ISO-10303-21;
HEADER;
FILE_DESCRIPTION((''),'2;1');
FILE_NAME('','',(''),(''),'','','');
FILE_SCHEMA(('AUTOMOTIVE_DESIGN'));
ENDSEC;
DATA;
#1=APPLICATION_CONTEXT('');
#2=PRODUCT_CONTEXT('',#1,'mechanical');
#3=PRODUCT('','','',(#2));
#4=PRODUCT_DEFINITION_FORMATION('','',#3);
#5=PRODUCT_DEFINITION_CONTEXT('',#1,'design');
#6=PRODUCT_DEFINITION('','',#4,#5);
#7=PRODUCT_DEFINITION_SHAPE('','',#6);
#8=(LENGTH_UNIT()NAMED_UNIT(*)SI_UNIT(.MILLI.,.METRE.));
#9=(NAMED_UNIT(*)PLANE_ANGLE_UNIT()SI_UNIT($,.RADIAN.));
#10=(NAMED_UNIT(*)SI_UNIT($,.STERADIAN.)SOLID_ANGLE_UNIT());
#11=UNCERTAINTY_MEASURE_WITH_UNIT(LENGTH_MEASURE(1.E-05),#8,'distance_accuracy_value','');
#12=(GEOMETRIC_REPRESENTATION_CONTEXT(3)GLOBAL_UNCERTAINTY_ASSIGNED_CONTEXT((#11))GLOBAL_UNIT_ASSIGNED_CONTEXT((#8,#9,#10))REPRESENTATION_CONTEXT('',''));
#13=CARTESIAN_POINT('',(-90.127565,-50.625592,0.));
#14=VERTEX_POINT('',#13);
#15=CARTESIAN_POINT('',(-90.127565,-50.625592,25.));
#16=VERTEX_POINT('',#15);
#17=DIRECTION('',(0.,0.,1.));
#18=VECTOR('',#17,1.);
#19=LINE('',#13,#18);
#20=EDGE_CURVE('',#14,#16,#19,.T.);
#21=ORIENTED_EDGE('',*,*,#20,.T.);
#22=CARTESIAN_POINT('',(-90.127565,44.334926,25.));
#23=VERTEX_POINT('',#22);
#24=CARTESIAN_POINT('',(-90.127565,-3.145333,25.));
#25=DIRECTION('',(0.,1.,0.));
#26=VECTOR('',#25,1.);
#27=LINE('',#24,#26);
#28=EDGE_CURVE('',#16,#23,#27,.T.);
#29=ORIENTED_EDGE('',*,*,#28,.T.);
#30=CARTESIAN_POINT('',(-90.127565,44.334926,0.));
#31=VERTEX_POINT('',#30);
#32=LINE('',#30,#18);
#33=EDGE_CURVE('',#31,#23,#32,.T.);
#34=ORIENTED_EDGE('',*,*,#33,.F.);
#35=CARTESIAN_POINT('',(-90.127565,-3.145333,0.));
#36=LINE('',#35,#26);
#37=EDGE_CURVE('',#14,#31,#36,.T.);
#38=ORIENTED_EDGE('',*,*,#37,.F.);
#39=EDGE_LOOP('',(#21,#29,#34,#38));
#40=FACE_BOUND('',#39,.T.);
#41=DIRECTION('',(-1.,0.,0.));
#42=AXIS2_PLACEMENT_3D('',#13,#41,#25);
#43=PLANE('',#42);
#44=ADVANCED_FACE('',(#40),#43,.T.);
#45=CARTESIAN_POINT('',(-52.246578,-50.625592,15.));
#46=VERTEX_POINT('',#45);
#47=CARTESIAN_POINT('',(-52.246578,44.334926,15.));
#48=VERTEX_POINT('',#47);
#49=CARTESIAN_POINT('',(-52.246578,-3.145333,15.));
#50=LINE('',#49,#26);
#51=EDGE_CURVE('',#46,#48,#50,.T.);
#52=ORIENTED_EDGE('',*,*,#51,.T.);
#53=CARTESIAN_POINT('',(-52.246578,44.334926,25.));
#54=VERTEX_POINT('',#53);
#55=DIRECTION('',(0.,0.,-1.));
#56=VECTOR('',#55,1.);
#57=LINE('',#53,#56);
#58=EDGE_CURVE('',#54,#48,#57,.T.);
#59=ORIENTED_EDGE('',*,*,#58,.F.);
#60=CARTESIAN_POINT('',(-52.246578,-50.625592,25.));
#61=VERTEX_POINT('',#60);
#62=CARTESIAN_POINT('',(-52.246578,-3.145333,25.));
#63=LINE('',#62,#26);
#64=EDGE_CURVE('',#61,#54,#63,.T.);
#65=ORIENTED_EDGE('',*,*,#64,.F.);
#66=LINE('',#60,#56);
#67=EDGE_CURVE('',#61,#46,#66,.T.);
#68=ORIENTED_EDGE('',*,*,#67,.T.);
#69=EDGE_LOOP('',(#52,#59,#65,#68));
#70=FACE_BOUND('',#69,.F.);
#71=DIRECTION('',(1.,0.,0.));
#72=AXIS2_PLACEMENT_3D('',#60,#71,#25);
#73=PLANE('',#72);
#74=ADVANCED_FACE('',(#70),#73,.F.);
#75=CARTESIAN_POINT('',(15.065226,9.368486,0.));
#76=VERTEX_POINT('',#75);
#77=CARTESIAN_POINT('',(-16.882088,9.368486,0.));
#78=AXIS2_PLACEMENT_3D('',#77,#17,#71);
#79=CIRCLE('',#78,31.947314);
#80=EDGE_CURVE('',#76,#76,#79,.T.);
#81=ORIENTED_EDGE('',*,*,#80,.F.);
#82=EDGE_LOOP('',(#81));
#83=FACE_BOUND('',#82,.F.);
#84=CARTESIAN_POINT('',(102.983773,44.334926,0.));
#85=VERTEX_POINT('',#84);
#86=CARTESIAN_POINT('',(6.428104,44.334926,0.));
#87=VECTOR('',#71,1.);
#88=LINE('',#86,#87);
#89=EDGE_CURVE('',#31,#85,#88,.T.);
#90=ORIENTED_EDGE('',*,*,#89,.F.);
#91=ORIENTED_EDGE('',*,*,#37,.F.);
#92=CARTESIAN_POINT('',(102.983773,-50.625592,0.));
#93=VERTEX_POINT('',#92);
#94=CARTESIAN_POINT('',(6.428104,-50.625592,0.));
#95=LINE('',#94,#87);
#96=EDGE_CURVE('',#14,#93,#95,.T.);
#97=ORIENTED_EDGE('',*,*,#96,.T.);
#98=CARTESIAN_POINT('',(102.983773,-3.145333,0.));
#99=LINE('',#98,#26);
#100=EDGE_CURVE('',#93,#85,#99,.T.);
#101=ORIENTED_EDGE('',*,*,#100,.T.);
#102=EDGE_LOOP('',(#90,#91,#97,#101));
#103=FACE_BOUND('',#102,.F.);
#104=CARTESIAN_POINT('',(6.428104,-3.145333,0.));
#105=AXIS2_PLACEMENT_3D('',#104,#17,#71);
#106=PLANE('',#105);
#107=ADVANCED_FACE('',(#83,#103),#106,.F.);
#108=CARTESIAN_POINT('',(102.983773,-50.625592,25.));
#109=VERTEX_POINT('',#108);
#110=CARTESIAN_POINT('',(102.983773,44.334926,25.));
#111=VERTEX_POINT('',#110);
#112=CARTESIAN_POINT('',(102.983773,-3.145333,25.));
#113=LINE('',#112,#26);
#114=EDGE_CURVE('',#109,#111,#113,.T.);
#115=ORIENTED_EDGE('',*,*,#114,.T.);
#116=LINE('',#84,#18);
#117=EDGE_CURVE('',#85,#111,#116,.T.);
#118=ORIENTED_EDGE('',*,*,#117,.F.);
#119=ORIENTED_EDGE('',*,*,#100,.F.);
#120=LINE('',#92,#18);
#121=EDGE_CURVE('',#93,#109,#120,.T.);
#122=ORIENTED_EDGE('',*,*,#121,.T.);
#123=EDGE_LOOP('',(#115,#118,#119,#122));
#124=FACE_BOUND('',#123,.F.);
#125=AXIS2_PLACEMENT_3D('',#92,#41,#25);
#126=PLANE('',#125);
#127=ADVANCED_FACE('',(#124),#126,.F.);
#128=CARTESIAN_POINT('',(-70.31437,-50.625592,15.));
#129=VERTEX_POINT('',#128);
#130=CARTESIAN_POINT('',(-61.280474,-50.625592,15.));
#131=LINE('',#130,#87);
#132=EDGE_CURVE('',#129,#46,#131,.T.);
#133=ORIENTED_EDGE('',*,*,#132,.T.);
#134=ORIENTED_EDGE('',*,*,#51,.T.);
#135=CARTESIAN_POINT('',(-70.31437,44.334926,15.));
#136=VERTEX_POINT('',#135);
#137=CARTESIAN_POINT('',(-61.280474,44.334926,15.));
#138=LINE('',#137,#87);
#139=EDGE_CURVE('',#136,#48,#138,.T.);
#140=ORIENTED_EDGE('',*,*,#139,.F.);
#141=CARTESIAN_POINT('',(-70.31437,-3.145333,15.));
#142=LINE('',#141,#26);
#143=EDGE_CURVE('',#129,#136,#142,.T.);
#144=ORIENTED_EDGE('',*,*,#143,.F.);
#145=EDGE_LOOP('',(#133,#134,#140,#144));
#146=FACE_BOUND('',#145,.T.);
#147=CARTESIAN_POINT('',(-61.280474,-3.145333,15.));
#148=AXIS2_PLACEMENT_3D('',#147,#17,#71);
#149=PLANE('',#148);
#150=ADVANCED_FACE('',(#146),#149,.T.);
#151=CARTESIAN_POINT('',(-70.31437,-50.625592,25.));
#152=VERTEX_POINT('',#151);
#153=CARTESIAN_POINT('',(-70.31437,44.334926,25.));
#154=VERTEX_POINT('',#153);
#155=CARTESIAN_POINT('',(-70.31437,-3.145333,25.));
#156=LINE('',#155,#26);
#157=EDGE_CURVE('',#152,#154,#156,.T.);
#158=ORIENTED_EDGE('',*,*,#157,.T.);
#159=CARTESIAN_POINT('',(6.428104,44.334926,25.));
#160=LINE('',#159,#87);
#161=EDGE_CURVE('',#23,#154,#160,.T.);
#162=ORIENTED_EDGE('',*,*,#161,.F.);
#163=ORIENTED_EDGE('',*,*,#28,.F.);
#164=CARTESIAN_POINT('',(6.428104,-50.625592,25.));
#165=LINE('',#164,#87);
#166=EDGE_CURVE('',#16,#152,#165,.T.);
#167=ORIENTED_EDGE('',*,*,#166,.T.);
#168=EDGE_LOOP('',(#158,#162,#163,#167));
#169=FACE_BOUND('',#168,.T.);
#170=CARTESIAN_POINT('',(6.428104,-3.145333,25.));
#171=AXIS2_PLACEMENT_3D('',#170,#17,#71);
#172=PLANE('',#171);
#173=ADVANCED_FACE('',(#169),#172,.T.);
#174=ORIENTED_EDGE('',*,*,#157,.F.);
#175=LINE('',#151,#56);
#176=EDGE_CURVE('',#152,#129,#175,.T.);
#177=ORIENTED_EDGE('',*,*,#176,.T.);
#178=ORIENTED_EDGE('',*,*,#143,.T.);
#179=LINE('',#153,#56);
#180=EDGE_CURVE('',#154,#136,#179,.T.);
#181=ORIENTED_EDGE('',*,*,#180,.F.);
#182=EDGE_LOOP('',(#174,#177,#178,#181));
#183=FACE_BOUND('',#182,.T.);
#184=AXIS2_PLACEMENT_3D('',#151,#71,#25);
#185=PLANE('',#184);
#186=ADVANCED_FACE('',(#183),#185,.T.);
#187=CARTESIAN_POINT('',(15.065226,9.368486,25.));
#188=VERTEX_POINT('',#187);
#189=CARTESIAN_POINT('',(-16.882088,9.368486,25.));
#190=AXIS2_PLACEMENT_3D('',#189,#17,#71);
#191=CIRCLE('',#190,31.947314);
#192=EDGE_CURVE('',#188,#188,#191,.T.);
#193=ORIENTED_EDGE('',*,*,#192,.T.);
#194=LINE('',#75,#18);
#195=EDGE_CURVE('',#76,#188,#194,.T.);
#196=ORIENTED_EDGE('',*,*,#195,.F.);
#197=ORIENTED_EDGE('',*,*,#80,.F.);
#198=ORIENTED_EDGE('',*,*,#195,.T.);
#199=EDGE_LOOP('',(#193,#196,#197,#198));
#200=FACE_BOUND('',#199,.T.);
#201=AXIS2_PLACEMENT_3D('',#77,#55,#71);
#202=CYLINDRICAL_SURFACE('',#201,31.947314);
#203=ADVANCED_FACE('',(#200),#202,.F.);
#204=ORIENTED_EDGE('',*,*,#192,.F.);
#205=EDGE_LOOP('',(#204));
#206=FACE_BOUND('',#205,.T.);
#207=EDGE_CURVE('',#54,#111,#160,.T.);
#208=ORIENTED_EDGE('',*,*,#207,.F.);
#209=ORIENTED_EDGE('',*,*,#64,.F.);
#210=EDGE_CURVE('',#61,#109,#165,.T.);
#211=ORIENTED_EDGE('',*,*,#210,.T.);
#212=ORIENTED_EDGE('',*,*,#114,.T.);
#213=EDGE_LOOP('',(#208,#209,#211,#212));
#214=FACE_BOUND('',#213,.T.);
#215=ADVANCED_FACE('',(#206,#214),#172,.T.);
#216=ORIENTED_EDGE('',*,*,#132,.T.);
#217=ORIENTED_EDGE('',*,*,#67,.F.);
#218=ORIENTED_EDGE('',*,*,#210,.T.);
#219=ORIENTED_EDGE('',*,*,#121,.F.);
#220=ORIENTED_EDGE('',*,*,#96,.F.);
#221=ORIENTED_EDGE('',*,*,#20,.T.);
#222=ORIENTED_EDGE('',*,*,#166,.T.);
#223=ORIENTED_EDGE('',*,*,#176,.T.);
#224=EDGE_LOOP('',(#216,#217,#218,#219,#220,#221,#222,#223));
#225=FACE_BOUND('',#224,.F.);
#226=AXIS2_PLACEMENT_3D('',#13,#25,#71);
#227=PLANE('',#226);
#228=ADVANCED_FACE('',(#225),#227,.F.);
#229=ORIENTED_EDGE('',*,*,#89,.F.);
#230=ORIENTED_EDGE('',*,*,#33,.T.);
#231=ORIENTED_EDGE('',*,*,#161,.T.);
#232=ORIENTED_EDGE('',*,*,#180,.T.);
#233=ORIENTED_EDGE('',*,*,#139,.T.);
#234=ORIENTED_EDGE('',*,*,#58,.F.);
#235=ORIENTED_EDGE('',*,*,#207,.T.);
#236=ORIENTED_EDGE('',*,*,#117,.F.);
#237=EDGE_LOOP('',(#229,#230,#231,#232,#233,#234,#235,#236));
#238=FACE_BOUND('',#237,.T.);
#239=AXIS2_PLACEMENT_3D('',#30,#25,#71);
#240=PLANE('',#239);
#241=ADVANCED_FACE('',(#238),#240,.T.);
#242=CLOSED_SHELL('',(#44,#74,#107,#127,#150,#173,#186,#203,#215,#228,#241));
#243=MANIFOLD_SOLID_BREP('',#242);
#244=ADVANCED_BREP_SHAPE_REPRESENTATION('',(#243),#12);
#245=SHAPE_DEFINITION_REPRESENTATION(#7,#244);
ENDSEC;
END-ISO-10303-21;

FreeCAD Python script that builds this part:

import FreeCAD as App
import Part
import Sketcher

V = App.Vector
Q = App.Units.Quantity


def add_polygon(sketch, points):
    """Adds a closed chain of lines whose ends are joined by coincident constraints."""
    first, n = sketch.GeometryCount, len(points)
    for a, b in zip(points, points[1:] + points[:1]):
        sketch.addGeometry(Part.LineSegment(App.Vector(*a, 0), App.Vector(*b, 0)), False)
    for i in range(n):
        sketch.addConstraint(Sketcher.Constraint("Coincident", first + i, 2, first + (i + 1) % n, 1))

doc = App.newDocument("Part")
body = doc.addObject("PartDesign::Body", "Body")

# Sketch on XY plane
sketch1 = body.newObject("Sketcher::SketchObject", "Sketch")
sketch1.AttachmentSupport = (doc.getObject("XY_Plane"), [""])
sketch1.MapMode = "FlatFace"
add_polygon(sketch1, [(-90.127565, 44.334926), (-90.127565, -50.625592), (102.983773, -50.625592), (102.983773, 44.334926)])  # lines 0-3
sketch1.addGeometry(Part.Circle(V(-16.882088, 9.368486, 0), V(0, 0, 1), 31.947314), False)  # 4
sketch1.addConstraint(Sketcher.Constraint("Vertical", 0))
sketch1.addConstraint(Sketcher.Constraint("Horizontal", 1))
sketch1.addConstraint(Sketcher.Constraint("Vertical", 2))
sketch1.addConstraint(Sketcher.Constraint("Horizontal", 3))
sketch1.addConstraint(Sketcher.Constraint("Diameter", 4, Q("63.894628 mm")))
sketch1.addConstraint(Sketcher.Constraint("DistanceY", 0, 2, 0, 1, Q("94.960518 mm")))
sketch1.addConstraint(Sketcher.Constraint("DistanceX", 1, 1, 1, 2, Q("193.111338 mm")))
sketch1.addConstraint(Sketcher.Constraint("DistanceY", 0, 2, -1, 1, Q("50.625592 mm")))
sketch1.addConstraint(Sketcher.Constraint("DistanceY", 0, 2, 4, 3, Q("59.994078 mm")))
sketch1.addConstraint(Sketcher.Constraint("DistanceX", 4, 3, 1, 2, Q("119.865861 mm")))
sketch1.addConstraint(Sketcher.Constraint("DistanceX", 4, 3, -1, 1, Q("16.882088 mm")))
pad1 = body.newObject("PartDesign::Pad", "Pad")
pad1.Profile = sketch1
pad1.Length = 25

# Sketch on XY plane
sketch2 = body.newObject("Sketcher::SketchObject", "Sketch001")
sketch2.AttachmentSupport = (doc.getObject("XY_Plane"), [""])
sketch2.MapMode = "FlatFace"
sketch2.AttachmentOffset = App.Placement(V(0, 0, 25), App.Rotation())
add_polygon(sketch2, [(-70.31437, 44.334926), (-70.31437, -50.625592), (-52.246578, -50.625592), (-52.246578, 44.334926)])  # lines 0-3
sketch2.addConstraint(Sketcher.Constraint("Vertical", 0))
sketch2.addConstraint(Sketcher.Constraint("Horizontal", 1))
sketch2.addConstraint(Sketcher.Constraint("Vertical", 2))
sketch2.addConstraint(Sketcher.Constraint("Horizontal", 3))
sketch2.addConstraint(Sketcher.Constraint("DistanceX", 1, 1, 1, 2, Q("18.067792 mm")))
sketch2.addConstraint(Sketcher.Constraint("DistanceY", 0, 2, 0, 1, Q("94.960518 mm")))
sketch2.addConstraint(Sketcher.Constraint("DistanceX", 0, 2, -1, 1, Q("70.31437 mm")))
sketch2.addConstraint(Sketcher.Constraint("DistanceY", 0, 2, -1, 1, Q("50.625592 mm")))
pocket1 = body.newObject("PartDesign::Pocket", "Pocket")
pocket1.Profile = sketch2
pocket1.Length = 10

doc.recompute()
